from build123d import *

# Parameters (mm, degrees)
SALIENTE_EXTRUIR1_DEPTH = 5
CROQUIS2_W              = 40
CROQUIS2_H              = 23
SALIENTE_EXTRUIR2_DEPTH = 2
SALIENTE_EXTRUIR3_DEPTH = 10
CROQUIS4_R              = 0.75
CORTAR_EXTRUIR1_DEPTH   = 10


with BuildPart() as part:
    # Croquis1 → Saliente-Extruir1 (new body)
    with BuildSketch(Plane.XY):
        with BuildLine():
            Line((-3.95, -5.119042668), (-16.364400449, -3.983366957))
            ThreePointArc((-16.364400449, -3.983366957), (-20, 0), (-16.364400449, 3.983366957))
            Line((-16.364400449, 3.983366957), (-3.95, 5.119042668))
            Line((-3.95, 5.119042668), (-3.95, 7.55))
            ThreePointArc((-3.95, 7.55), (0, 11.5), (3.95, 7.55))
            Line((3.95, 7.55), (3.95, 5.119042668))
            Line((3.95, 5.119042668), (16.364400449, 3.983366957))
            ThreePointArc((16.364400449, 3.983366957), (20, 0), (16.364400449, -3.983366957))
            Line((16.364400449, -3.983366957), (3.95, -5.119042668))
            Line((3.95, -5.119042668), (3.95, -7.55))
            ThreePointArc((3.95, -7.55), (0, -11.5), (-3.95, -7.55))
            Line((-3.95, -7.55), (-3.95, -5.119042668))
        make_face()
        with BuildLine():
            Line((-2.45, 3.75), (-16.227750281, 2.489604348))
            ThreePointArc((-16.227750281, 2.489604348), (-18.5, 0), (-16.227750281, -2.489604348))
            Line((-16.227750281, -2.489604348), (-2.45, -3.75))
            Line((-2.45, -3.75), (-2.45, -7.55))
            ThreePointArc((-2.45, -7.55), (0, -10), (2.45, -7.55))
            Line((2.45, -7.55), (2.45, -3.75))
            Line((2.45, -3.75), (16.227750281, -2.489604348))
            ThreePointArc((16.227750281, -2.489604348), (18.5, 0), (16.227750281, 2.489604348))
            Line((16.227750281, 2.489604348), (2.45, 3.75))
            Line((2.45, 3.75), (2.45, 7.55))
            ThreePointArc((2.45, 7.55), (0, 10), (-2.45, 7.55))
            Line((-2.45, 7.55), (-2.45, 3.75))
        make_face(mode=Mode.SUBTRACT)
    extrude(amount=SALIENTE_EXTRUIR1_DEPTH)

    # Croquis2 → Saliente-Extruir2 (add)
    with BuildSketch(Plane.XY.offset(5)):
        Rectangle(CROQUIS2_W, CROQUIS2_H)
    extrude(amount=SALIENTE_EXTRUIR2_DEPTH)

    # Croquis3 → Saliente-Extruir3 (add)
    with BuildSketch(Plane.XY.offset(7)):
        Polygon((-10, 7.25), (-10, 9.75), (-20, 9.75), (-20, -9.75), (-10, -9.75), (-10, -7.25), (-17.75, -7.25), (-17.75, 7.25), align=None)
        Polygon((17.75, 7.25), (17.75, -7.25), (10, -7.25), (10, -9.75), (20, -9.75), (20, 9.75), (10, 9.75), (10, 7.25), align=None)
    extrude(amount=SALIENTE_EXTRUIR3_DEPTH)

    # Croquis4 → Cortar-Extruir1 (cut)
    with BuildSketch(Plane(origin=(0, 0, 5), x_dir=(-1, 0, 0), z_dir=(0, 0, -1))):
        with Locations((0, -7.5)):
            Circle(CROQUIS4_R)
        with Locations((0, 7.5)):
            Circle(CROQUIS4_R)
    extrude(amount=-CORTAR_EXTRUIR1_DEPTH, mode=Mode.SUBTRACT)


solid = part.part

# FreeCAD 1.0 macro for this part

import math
import FreeCAD as App
import Part
import Sketcher
from FreeCAD import Vector
Q = App.Units.Quantity

doc = App.newDocument("Part")
params = doc.addObject("Spreadsheet::Sheet", "Params")
for row, (alias, value) in enumerate([
    ("sketch1_radius", "4 mm"),
    ("sketch1_radius2", "2.5 mm"),
    ("sketch1_radius3", "3.95 mm"),
    ("sketch1_radius4", "2.45 mm"),
    ("sketch1_height", "3.8 mm"),
    ("pad1_length", "5 mm"),
    ("sketch2_width", "40 mm"),
    ("sketch2_height", "23 mm"),
    ("pad2_length", "2 mm"),
    ("sketch3_width", "10 mm"),
    ("sketch3_height", "2.5 mm"),
    ("sketch3_height2", "19.5 mm"),
    ("sketch3_width2", "7.75 mm"),
    ("pad3_length", "10 mm"),
    ("sketch4_diameter", "1.5 mm"),
    ("pocket1_length", "10 mm"),
], start=1):
    params.set(f"A{row}", alias)
    params.set(f"B{row}", "=" + value)
    params.setAlias(f"B{row}", alias)

body = doc.addObject("PartDesign::Body", "Body")

# Sketch on XY plane
sketch1 = body.newObject("Sketcher::SketchObject", "Sketch")
sketch1.AttachmentSupport = (doc.getObject("XY_Plane"), [""])
sketch1.MapMode = "FlatFace"
sketch1.addGeometry([
    Part.LineSegment(Vector(-16.4, -4, 0), Vector(-4, -5.1, 0)),  # 0
    Part.LineSegment(Vector(-4, -5.1, 0), Vector(-4, -7.5, 0)),  # 1
    Part.ArcOfCircle(Part.Circle(Vector(0, -7.5, 0), Vector(0, 0, 1), 4), math.radians(180), math.radians(360)),  # 2
    Part.LineSegment(Vector(4, -7.5, 0), Vector(4, -5.1, 0)),  # 3
    Part.LineSegment(Vector(4, -5.1, 0), Vector(16.4, -4, 0)),  # 4
    Part.ArcOfCircle(Part.Circle(Vector(16, 0, 0), Vector(0, 0, 1), 4), math.radians(-85), math.radians(85)),  # 5
    Part.LineSegment(Vector(16.4, 4, 0), Vector(4, 5.1, 0)),  # 6
    Part.LineSegment(Vector(4, 5.1, 0), Vector(4, 7.5, 0)),  # 7
    Part.ArcOfCircle(Part.Circle(Vector(0, 7.5, 0), Vector(0, 0, 1), 4), math.radians(0), math.radians(180)),  # 8
    Part.LineSegment(Vector(-4, 7.5, 0), Vector(-4, 5.1, 0)),  # 9
    Part.LineSegment(Vector(-4, 5.1, 0), Vector(-16.4, 4, 0)),  # 10
    Part.ArcOfCircle(Part.Circle(Vector(-16, 0, 0), Vector(0, 0, 1), 4), math.radians(95), math.radians(265)),  # 11
    Part.LineSegment(Vector(-2.5, 3.8, 0), Vector(-2.5, 7.5, 0)),  # 12
    Part.ArcOfCircle(Part.Circle(Vector(0, 7.5, 0), Vector(0, 0, 1), 2.5), math.radians(0), math.radians(180)),  # 13
    Part.LineSegment(Vector(2.5, 7.5, 0), Vector(2.5, 3.8, 0)),  # 14
    Part.LineSegment(Vector(2.5, 3.8, 0), Vector(16.2, 2.5, 0)),  # 15
    Part.ArcOfCircle(Part.Circle(Vector(16, 0, 0), Vector(0, 0, 1), 2.5), math.radians(-85), math.radians(85)),  # 16
    Part.LineSegment(Vector(16.2, -2.5, 0), Vector(2.5, -3.8, 0)),  # 17
    Part.LineSegment(Vector(2.5, -3.8, 0), Vector(2.5, -7.5, 0)),  # 18
    Part.ArcOfCircle(Part.Circle(Vector(0, -7.5, 0), Vector(0, 0, 1), 2.5), math.radians(180), math.radians(360)),  # 19
    Part.LineSegment(Vector(-2.5, -7.5, 0), Vector(-2.5, -3.8, 0)),  # 20
    Part.LineSegment(Vector(-2.5, -3.8, 0), Vector(-16.2, -2.5, 0)),  # 21
    Part.ArcOfCircle(Part.Circle(Vector(-16, 0, 0), Vector(0, 0, 1), 2.5), math.radians(95), math.radians(265)),  # 22
    Part.LineSegment(Vector(-16.2, 2.5, 0), Vector(-2.5, 3.8, 0)),  # 23
], False)
sketch1.addConstraint([
    Sketcher.Constraint("Coincident", 0, 2, 1, 1),
    Sketcher.Constraint("Tangent", 1, 2, 2, 1),
    Sketcher.Constraint("Tangent", 2, 2, 3, 1),
    Sketcher.Constraint("Coincident", 3, 2, 4, 1),
    Sketcher.Constraint("Tangent", 4, 2, 5, 1),
    Sketcher.Constraint("Tangent", 5, 2, 6, 1),
    Sketcher.Constraint("Coincident", 6, 2, 7, 1),
    Sketcher.Constraint("Tangent", 7, 2, 8, 1),
    Sketcher.Constraint("Tangent", 8, 2, 9, 1),
    Sketcher.Constraint("Coincident", 9, 2, 10, 1),
    Sketcher.Constraint("Tangent", 10, 2, 11, 1),
    Sketcher.Constraint("Tangent", 11, 2, 0, 1),
    Sketcher.Constraint("Tangent", 12, 2, 13, 2),
    Sketcher.Constraint("Tangent", 13, 1, 14, 1),
    Sketcher.Constraint("Coincident", 14, 2, 15, 1),
    Sketcher.Constraint("Tangent", 15, 2, 16, 2),
    Sketcher.Constraint("Tangent", 16, 1, 17, 1),
    Sketcher.Constraint("Coincident", 17, 2, 18, 1),
    Sketcher.Constraint("Tangent", 18, 2, 19, 2),
    Sketcher.Constraint("Tangent", 19, 1, 20, 1),
    Sketcher.Constraint("Coincident", 20, 2, 21, 1),
    Sketcher.Constraint("Tangent", 21, 2, 22, 2),
    Sketcher.Constraint("Tangent", 22, 1, 23, 1),
    Sketcher.Constraint("Coincident", 23, 2, 12, 1),
    Sketcher.Constraint("Vertical", 1),
    Sketcher.Constraint("Vertical", 3),
    Sketcher.Constraint("Vertical", 7),
    Sketcher.Constraint("Vertical", 9),
    Sketcher.Constraint("Vertical", 12),
    Sketcher.Constraint("Vertical", 14),
    Sketcher.Constraint("Vertical", 18),
    Sketcher.Constraint("Vertical", 20),
    Sketcher.Constraint("Coincident", 13, 3, 8, 3),
    Sketcher.Constraint("Coincident", 16, 3, 5, 3),
    Sketcher.Constraint("Coincident", 19, 3, 2, 3),
    Sketcher.Constraint("Coincident", 22, 3, 11, 3),
    Sketcher.Constraint("Equal", 2, 8),
    Sketcher.Constraint("Equal", 5, 11),
    Sketcher.Constraint("Equal", 13, 19),
    Sketcher.Constraint("Equal", 16, 22),
    Sketcher.Constraint("Symmetric", 2, 3, 8, 3, -1, 1),
    Sketcher.Constraint("Symmetric", 5, 3, 11, 3, -1, 1),
    Sketcher.Constraint("Symmetric", 0, 2, 3, 2, -2),
    Sketcher.Constraint("Symmetric", 5, 2, 10, 2, -2),
    Sketcher.Constraint("Parallel", 0, 6),
    Sketcher.Constraint("Parallel", 6, 15),
    Sketcher.Constraint("Parallel", 10, 17),
    Sketcher.Constraint("Parallel", 15, 21),
    Sketcher.Constraint("Parallel", 17, 23),
    Sketcher.Constraint("Radius", 5, Q("4 mm")),
    Sketcher.Constraint("Radius", 16, Q("2.5 mm")),
    Sketcher.Constraint("Radius", 2, Q("3.95 mm")),
    Sketcher.Constraint("Radius", 13, Q("2.45 mm")),
    Sketcher.Constraint("DistanceY", 12, 1, 12, 2, Q("3.8 mm")),
    Sketcher.Constraint("DistanceX", -1, 1, 5, 3, Q("16 mm")),
    Sketcher.Constraint("DistanceY", 2, 3, 8, 3, Q("15.1 mm")),
])
sketch1.setExpression("Constraints[49]", "Params.sketch1_radius")
sketch1.setExpression("Constraints[50]", "Params.sketch1_radius2")
sketch1.setExpression("Constraints[51]", "Params.sketch1_radius3")
sketch1.setExpression("Constraints[52]", "Params.sketch1_radius4")
sketch1.setExpression("Constraints[53]", "Params.sketch1_height")
pad1 = body.newObject("PartDesign::Pad", "Pad")
pad1.Profile = sketch1
pad1.setExpression("Length", "Params.pad1_length")

# Sketch on XY plane
sketch2 = body.newObject("Sketcher::SketchObject", "Sketch001")
sketch2.AttachmentSupport = (doc.getObject("XY_Plane"), [""])
sketch2.MapMode = "FlatFace"
sketch2.AttachmentOffset = App.Placement(Vector(0, 0, 5), App.Rotation())
sketch2.addGeometry([
    Part.LineSegment(Vector(-20, 12, 0), Vector(-20, -12, 0)),
    Part.LineSegment(Vector(-20, -12, 0), Vector(20, -12, 0)),
    Part.LineSegment(Vector(20, -12, 0), Vector(20, 12, 0)),
    Part.LineSegment(Vector(20, 12, 0), Vector(-20, 12, 0)),
], False)
sketch2.addConstraint([
    Sketcher.Constraint("Coincident", 0, 2, 1, 1),
    Sketcher.Constraint("Coincident", 1, 2, 2, 1),
    Sketcher.Constraint("Coincident", 2, 2, 3, 1),
    Sketcher.Constraint("Coincident", 3, 2, 0, 1),
    Sketcher.Constraint("Vertical", 0),
    Sketcher.Constraint("Horizontal", 1),
    Sketcher.Constraint("Vertical", 2),
    Sketcher.Constraint("Horizontal", 3),
    Sketcher.Constraint("Symmetric", 0, 2, 2, 2, -1, 1),
    Sketcher.Constraint("DistanceX", 1, 1, 1, 2, Q("40 mm")),
    Sketcher.Constraint("DistanceY", 0, 2, 0, 1, Q("23 mm")),
])
sketch2.setExpression("Constraints[9]", "Params.sketch2_width")
sketch2.setExpression("Constraints[10]", "Params.sketch2_height")
pad2 = body.newObject("PartDesign::Pad", "Pad001")
pad2.Profile = sketch2
pad2.setExpression("Length", "Params.pad2_length")

# Sketch on XY plane
sketch3 = body.newObject("Sketcher::SketchObject", "Sketch002")
sketch3.AttachmentSupport = (doc.getObject("XY_Plane"), [""])
sketch3.MapMode = "FlatFace"
sketch3.AttachmentOffset = App.Placement(Vector(0, 0, 7), App.Rotation())
sketch3.addGeometry([
    Part.LineSegment(Vector(-10, 7.2, 0), Vector(-10, 9.8, 0)),  # 0
    Part.LineSegment(Vector(-10, 9.8, 0), Vector(-20, 9.8, 0)),  # 1
    Part.LineSegment(Vector(-20, 9.8, 0), Vector(-20, -9.8, 0)),  # 2
    Part.LineSegment(Vector(-20, -9.8, 0), Vector(-10, -9.8, 0)),  # 3
    Part.LineSegment(Vector(-10, -9.8, 0), Vector(-10, -7.2, 0)),  # 4
    Part.LineSegment(Vector(-10, -7.2, 0), Vector(-17.8, -7.2, 0)),  # 5
    Part.LineSegment(Vector(-17.8, -7.2, 0), Vector(-17.8, 7.2, 0)),  # 6
    Part.LineSegment(Vector(-17.8, 7.2, 0), Vector(-10, 7.2, 0)),  # 7
    Part.LineSegment(Vector(17.8, 7.2, 0), Vector(17.8, -7.2, 0)),  # 8
    Part.LineSegment(Vector(17.8, -7.2, 0), Vector(10, -7.2, 0)),  # 9
    Part.LineSegment(Vector(10, -7.2, 0), Vector(10, -9.8, 0)),  # 10
    Part.LineSegment(Vector(10, -9.8, 0), Vector(20, -9.8, 0)),  # 11
    Part.LineSegment(Vector(20, -9.8, 0), Vector(20, 9.8, 0)),  # 12
    Part.LineSegment(Vector(20, 9.8, 0), Vector(10, 9.8, 0)),  # 13
    Part.LineSegment(Vector(10, 9.8, 0), Vector(10, 7.2, 0)),  # 14
    Part.LineSegment(Vector(10, 7.2, 0), Vector(17.8, 7.2, 0)),  # 15
], False)
sketch3.addConstraint([
    Sketcher.Constraint("Coincident", 0, 2, 1, 1),
    Sketcher.Constraint("Coincident", 1, 2, 2, 1),
    Sketcher.Constraint("Coincident", 2, 2, 3, 1),
    Sketcher.Constraint("Coincident", 3, 2, 4, 1),
    Sketcher.Constraint("Coincident", 4, 2, 5, 1),
    Sketcher.Constraint("Coincident", 5, 2, 6, 1),
    Sketcher.Constraint("Coincident", 6, 2, 7, 1),
    Sketcher.Constraint("Coincident", 7, 2, 0, 1),
    Sketcher.Constraint("Coincident", 8, 2, 9, 1),
    Sketcher.Constraint("Coincident", 9, 2, 10, 1),
    Sketcher.Constraint("Coincident", 10, 2, 11, 1),
    Sketcher.Constraint("Coincident", 11, 2, 12, 1),
    Sketcher.Constraint("Coincident", 12, 2, 13, 1),
    Sketcher.Constraint("Coincident", 13, 2, 14, 1),
    Sketcher.Constraint("Coincident", 14, 2, 15, 1),
    Sketcher.Constraint("Coincident", 15, 2, 8, 1),
    Sketcher.Constraint("Vertical", 0),
    Sketcher.Constraint("Horizontal", 1),
    Sketcher.Constraint("Vertical", 2),
    Sketcher.Constraint("Horizontal", 3),
    Sketcher.Constraint("Vertical", 4),
    Sketcher.Constraint("Horizontal", 5),
    Sketcher.Constraint("Vertical", 6),
    Sketcher.Constraint("Horizontal", 7),
    Sketcher.Constraint("Vertical", 8),
    Sketcher.Constraint("Horizontal", 9),
    Sketcher.Constraint("Vertical", 10),
    Sketcher.Constraint("Horizontal", 11),
    Sketcher.Constraint("Vertical", 12),
    Sketcher.Constraint("Horizontal", 13),
    Sketcher.Constraint("Vertical", 14),
    Sketcher.Constraint("Horizontal", 15),
    Sketcher.Constraint("Symmetric", 6, 2, 8, 2, -1, 1),
    Sketcher.Constraint("Symmetric", 0, 2, 10, 2, -1, 1),
    Sketcher.Constraint("Symmetric", 2, 2, 12, 2, -1, 1),
    Sketcher.Constraint("Symmetric", 4, 2, 14, 2, -1, 1),
    Sketcher.Constraint("Symmetric", 4, 2, 9, 2, -2),
    Sketcher.Constraint("Horizontal", 3, 2, 10, 2),
    Sketcher.Constraint("DistanceX", 1, 2, 1, 1, Q("10 mm")),
    Sketcher.Constraint("DistanceY", 0, 1, 0, 2, Q("2.5 mm")),
    Sketcher.Constraint("DistanceY", 2, 2, 2, 1, Q("19.5 mm")),
    Sketcher.Constraint("DistanceX", 0, 2, -1, 1, Q("10 mm")),
    Sketcher.Constraint("DistanceX", 5, 2, 5, 1, Q("7.75 mm")),
])
sketch3.setExpression("Constraints[38]", "Params.sketch3_width")
sketch3.setExpression("Constraints[39]", "Params.sketch3_height")
sketch3.setExpression("Constraints[40]", "Params.sketch3_height2")
sketch3.setExpression("Constraints[42]", "Params.sketch3_width2")
pad3 = body.newObject("PartDesign::Pad", "Pad002")
pad3.Profile = sketch3
pad3.setExpression("Length", "Params.pad3_length")

# Sketch on XY plane
sketch4 = body.newObject("Sketcher::SketchObject", "Sketch003")
sketch4.AttachmentSupport = (doc.getObject("XY_Plane"), [""])
sketch4.MapMode = "FlatFace"
sketch4.AttachmentOffset = App.Placement(Vector(0, 0, 5), App.Rotation())
sketch4.addGeometry([
    Part.Circle(Vector(0, -7.5, 0), Vector(0, 0, 1), 0.8),
    Part.Circle(Vector(0, 7.5, 0), Vector(0, 0, 1), 0.8),
], False)
sketch4.addConstraint([
    Sketcher.Constraint("Equal", 0, 1),
    Sketcher.Constraint("Symmetric", 0, 3, 1, 3, -1, 1),
    Sketcher.Constraint("PointOnObject", 0, 3, -2),
    Sketcher.Constraint("Diameter", 0, Q("1.5 mm")),
    Sketcher.Constraint("DistanceY", 0, 3, 1, 3, Q("15 mm")),
])
sketch4.setExpression("Constraints[3]", "Params.sketch4_diameter")
pocket1 = body.newObject("PartDesign::Pocket", "Pocket")
pocket1.Profile = sketch4
pocket1.setExpression("Length", "Params.pocket1_length")
pocket1.Reversed = True

doc.recompute()
